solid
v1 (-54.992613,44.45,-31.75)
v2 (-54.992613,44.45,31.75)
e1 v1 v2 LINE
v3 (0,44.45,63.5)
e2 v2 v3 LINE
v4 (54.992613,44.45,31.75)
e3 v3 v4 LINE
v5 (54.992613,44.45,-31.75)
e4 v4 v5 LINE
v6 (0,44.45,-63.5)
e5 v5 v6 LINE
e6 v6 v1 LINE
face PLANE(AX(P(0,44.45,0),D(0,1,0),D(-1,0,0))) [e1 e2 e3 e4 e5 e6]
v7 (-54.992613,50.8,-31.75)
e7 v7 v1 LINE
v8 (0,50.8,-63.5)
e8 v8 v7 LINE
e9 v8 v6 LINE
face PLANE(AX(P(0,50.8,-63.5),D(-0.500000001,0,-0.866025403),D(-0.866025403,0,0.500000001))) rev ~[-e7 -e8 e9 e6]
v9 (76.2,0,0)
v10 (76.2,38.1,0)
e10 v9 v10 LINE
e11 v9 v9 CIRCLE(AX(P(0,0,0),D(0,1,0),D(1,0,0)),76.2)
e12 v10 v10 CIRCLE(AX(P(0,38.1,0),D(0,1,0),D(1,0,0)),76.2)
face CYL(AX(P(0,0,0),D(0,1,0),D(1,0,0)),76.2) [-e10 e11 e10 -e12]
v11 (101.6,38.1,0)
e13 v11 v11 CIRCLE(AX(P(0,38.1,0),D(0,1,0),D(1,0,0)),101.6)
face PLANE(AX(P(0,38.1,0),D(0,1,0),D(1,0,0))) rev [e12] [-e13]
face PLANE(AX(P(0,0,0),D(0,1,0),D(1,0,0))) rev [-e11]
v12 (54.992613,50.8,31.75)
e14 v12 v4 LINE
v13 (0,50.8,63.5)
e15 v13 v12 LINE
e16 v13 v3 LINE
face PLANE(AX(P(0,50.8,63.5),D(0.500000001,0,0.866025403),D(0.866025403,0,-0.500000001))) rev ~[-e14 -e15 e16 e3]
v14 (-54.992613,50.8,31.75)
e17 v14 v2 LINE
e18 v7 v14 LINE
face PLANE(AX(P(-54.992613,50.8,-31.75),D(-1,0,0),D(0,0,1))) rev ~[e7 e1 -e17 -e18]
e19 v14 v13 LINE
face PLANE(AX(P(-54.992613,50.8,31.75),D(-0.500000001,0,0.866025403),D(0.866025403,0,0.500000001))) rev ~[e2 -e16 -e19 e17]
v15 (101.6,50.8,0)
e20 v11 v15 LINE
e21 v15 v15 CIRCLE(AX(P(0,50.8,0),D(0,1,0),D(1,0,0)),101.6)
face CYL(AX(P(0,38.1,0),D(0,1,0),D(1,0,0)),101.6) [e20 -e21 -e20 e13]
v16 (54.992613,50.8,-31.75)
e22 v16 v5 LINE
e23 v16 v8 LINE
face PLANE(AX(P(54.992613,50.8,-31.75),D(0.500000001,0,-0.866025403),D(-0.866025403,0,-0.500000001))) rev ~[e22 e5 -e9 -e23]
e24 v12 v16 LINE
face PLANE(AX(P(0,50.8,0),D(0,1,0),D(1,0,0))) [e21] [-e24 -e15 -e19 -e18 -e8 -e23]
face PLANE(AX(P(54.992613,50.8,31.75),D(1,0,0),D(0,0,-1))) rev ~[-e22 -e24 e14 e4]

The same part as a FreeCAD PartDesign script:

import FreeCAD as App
import Part
import Sketcher
from FreeCAD import Vector
Q = App.Units.Quantity


def add_polygon(sketch, points):
    """Adds a closed chain of lines whose ends are joined by coincident constraints."""
    first, n = sketch.GeometryCount, len(points)
    for a, b in zip(points, points[1:] + points[:1]):
        sketch.addGeometry(Part.LineSegment(App.Vector(*a, 0), App.Vector(*b, 0)), False)
    for i in range(n):
        sketch.addConstraint(Sketcher.Constraint("Coincident", first + i, 2, first + (i + 1) % n, 1))

doc = App.newDocument("Part")
body = doc.addObject("PartDesign::Body", "Body")

# Sketch on XY plane
sketch1 = doc.addObject("Sketcher::SketchObject", "Sketch")
body.addObject(sketch1)
sketch1.AttachmentSupport = (doc.XY_Plane, [""])
sketch1.MapMode = "FlatFace"
add_polygon(sketch1, [(0, 51), (0, 0), (76, 0), (76, 38), (102, 38), (102, 51)])  # lines 0-5
sketch1.addConstraint(Sketcher.Constraint("Vertical", 0))
sketch1.addConstraint(Sketcher.Constraint("Horizontal", 1))
sketch1.addConstraint(Sketcher.Constraint("Vertical", 2))
sketch1.addConstraint(Sketcher.Constraint("Horizontal", 3))
sketch1.addConstraint(Sketcher.Constraint("Vertical", 4))
sketch1.addConstraint(Sketcher.Constraint("Horizontal", 5))
sketch1.addConstraint(Sketcher.Constraint("Coincident", 0, 2, -1, 1))
sketch1.addConstraint(Sketcher.Constraint("DistanceX", 1, 1, 1, 2, Q("3 in")))
sketch1.addConstraint(Sketcher.Constraint("DistanceX", 3, 1, 3, 2, Q("1 in")))
sketch1.addConstraint(Sketcher.Constraint("DistanceY", 0, 2, 0, 1, Q("2 in")))
sketch1.addConstraint(Sketcher.Constraint("DistanceY", 2, 1, 2, 2, Q("1.5 in")))
revolution = doc.addObject("PartDesign::Revolution", "Revolution")
body.addObject(revolution)
revolution.Profile = sketch1
revolution.ReferenceAxis = (sketch1, ["V_Axis"])
revolution.Angle = 360

# Sketch on XZ plane
sketch2 = doc.addObject("Sketcher::SketchObject", "Sketch001")
body.addObject(sketch2)
sketch2.AttachmentSupport = (doc.XZ_Plane, [""])
sketch2.MapMode = "FlatFace"
sketch2.AttachmentOffset = App.Placement(Vector(0, 0, -2 * 25.4), App.Rotation())
add_polygon(sketch2, [(0, -64), (-55, -32), (-55, 32), (0, 64), (55, 32), (55, -32)])  # lines 0-5
sketch2.addConstraint(Sketcher.Constraint("Vertical", 1))
sketch2.addConstraint(Sketcher.Constraint("Vertical", 4))
sketch2.addConstraint(Sketcher.Constraint("Symmetric", 0, 2, 3, 2, -1, 1))
sketch2.addConstraint(Sketcher.Constraint("Symmetric", 2, 2, 5, 2, -1, 1))
sketch2.addConstraint(Sketcher.Constraint("PointOnObject", 2, 2, -2))
sketch2.addConstraint(Sketcher.Constraint("Parallel", 2, 5))
sketch2.addConstraint(Sketcher.Constraint("Horizontal", 1, 2, 3, 2))
sketch2.addConstraint(Sketcher.Constraint("DistanceY", 1, 1, 1, 2, Q("2.5 in")))
sketch2.addConstraint(Sketcher.Constraint("Angle", 0, Q("150 deg")))
sketch2.addConstraint(Sketcher.Constraint("DistanceY", 5, 2, 2, 2, Q("5 in")))
pocket1 = doc.addObject("PartDesign::Pocket", "Pocket")
body.addObject(pocket1)
pocket1.Profile = sketch2
pocket1.Length = Q("0.25 in")
pocket1.Reversed = True

doc.recompute()
